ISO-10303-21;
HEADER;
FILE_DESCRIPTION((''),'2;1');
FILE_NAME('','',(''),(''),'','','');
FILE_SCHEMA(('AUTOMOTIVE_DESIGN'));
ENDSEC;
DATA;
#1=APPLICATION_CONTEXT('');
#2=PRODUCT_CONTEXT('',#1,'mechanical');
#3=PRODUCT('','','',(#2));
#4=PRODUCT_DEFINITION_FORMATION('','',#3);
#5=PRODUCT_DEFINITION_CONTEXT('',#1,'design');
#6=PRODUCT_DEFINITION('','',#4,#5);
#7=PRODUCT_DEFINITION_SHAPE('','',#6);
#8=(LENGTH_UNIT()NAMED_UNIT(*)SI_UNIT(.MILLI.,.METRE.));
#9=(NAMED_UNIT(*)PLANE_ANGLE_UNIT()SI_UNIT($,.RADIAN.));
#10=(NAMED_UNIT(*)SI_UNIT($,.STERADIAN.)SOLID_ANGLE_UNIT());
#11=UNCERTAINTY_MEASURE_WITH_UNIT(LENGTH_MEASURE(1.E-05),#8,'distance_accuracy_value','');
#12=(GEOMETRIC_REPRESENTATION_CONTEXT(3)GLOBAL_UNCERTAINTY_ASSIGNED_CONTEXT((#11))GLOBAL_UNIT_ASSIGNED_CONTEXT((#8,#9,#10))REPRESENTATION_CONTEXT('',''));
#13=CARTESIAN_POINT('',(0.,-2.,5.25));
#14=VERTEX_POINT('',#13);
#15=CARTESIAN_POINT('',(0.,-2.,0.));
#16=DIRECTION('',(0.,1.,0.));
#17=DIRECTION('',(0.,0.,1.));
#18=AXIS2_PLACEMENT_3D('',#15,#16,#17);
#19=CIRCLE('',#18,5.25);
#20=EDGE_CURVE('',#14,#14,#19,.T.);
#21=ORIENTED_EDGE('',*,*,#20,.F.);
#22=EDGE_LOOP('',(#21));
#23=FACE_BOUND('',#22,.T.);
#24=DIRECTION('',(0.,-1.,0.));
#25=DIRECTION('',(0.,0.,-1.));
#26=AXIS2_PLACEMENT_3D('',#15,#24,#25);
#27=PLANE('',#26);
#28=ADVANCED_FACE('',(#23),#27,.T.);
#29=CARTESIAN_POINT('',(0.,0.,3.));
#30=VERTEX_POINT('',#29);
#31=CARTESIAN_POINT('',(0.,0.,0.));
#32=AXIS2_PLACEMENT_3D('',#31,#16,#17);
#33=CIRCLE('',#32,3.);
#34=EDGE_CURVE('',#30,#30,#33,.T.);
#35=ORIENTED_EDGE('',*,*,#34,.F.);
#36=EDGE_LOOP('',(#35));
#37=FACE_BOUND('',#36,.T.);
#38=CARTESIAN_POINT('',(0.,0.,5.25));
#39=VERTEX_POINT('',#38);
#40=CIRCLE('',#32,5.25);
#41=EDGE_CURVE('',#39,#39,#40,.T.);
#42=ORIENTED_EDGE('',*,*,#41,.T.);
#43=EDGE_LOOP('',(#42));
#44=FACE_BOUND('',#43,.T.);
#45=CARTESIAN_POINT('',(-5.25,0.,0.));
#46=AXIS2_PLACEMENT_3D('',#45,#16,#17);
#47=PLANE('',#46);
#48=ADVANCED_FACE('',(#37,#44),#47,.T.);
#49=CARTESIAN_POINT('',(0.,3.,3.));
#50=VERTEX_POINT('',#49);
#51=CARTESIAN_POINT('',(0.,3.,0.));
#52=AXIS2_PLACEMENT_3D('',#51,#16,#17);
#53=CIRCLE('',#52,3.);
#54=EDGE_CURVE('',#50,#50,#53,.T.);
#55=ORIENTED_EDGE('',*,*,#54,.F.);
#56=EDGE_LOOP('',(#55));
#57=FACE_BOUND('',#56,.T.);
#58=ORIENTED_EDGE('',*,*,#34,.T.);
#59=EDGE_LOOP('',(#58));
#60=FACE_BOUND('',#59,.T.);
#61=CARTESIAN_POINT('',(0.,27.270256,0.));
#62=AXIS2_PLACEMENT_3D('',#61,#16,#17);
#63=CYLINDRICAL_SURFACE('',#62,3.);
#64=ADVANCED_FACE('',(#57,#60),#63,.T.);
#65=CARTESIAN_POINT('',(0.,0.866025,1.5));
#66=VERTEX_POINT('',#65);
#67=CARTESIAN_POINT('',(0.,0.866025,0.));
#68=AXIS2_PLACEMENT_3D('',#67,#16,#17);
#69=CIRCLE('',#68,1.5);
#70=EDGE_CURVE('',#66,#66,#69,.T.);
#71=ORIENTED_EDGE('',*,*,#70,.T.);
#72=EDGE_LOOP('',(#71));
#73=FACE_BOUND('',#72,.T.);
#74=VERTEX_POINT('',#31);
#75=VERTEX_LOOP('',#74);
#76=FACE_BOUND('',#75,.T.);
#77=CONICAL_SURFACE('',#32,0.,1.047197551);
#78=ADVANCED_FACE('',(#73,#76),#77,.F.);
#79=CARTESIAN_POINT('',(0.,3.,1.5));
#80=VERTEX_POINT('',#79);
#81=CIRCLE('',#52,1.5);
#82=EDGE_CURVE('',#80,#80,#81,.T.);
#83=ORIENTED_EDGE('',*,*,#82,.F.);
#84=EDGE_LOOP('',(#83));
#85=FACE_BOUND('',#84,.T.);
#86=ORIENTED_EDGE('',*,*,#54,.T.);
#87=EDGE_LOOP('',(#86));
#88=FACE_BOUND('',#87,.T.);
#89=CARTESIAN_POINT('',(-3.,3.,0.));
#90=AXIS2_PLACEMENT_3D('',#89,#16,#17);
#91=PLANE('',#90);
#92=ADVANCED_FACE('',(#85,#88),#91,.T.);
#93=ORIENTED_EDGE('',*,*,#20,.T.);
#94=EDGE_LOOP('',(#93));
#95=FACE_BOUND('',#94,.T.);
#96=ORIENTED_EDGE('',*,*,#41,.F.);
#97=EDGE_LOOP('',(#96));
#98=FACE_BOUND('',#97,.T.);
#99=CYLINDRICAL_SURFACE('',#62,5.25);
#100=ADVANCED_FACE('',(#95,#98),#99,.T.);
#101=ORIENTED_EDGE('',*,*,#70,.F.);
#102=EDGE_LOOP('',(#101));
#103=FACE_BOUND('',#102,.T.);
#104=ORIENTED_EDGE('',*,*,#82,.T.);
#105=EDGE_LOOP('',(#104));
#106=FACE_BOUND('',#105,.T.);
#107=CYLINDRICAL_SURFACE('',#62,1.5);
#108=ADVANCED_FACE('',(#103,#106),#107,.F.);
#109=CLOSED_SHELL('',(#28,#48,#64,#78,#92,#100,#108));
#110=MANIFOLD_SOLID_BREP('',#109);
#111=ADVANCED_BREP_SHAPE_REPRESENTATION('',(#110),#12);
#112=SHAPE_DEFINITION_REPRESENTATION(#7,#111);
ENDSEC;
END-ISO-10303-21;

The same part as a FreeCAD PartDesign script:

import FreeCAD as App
import Part
import Sketcher
from FreeCAD import Vector
Q = App.Units.Quantity


def add_polygon(sketch, points):
    """Adds a closed chain of lines whose ends are joined by coincident constraints."""
    first, n = sketch.GeometryCount, len(points)
    for a, b in zip(points, points[1:] + points[:1]):
        sketch.addGeometry(Part.LineSegment(App.Vector(*a, 0), App.Vector(*b, 0)), False)
    for i in range(n):
        sketch.addConstraint(Sketcher.Constraint("Coincident", first + i, 2, first + (i + 1) % n, 1))

doc = App.newDocument("Part")
params = doc.addObject("Spreadsheet::Sheet", "Params")
for row, (alias, value) in enumerate([
    ("sketch1_height", "2 mm"),
    ("sketch1_height2", "3 mm"),
    ("sketch1_width", "1.5 mm"),
    ("sketch1_width2", "5.25 mm"),
    ("revolution_angle", "360 deg"),
], start=1):
    params.set(f"A{row}", alias)
    params.set(f"B{row}", "=" + value)
    params.setAlias(f"B{row}", alias)

body = doc.addObject("PartDesign::Body", "Body")

# Sketch on XY plane
sketch1 = body.newObject("Sketcher::SketchObject", "Sketch")
sketch1.AttachmentSupport = (doc.getObject("XY_Plane"), [""])
sketch1.MapMode = "FlatFace"
add_polygon(sketch1, [(-5.2, -2), (0, -2), (0, 0), (-1.5, 0.9), (-1.5, 3), (-3, 3), (-3, 0), (-5.2, 0)])  # lines 0-7
sketch1.addConstraint([
    Sketcher.Constraint("Horizontal", 0),
    Sketcher.Constraint("Vertical", 1),
    Sketcher.Constraint("Vertical", 3),
    Sketcher.Constraint("Horizontal", 4),
    Sketcher.Constraint("Vertical", 5),
    Sketcher.Constraint("Horizontal", 6),
    Sketcher.Constraint("Vertical", 7),
    Sketcher.Constraint("Coincident", 1, 2, -1, 1),
    Sketcher.Constraint("PointOnObject", 5, 2, -1),
    Sketcher.Constraint("DistanceY", 1, 1, 1, 2, Q("2 mm")),
    Sketcher.Constraint("DistanceY", 5, 2, 5, 1, Q("3 mm")),
    Sketcher.Constraint("Angle", 2, Q("150 deg")),
    Sketcher.Constraint("DistanceX", 4, 2, 4, 1, Q("1.5 mm")),
    Sketcher.Constraint("DistanceX", 4, 2, -1, 1, Q("3 mm")),
    Sketcher.Constraint("DistanceX", 0, 1, 0, 2, Q("5.25 mm")),
])
sketch1.setExpression("Constraints[17]", "Params.sketch1_height")
sketch1.setExpression("Constraints[18]", "Params.sketch1_height2")
sketch1.setExpression("Constraints[20]", "Params.sketch1_width")
sketch1.setExpression("Constraints[22]", "Params.sketch1_width2")
revolution = body.newObject("PartDesign::Revolution", "Revolution")
revolution.Profile = sketch1
revolution.ReferenceAxis = (sketch1, ["V_Axis"])
revolution.setExpression("Angle", "Params.revolution_angle")

doc.recompute()
